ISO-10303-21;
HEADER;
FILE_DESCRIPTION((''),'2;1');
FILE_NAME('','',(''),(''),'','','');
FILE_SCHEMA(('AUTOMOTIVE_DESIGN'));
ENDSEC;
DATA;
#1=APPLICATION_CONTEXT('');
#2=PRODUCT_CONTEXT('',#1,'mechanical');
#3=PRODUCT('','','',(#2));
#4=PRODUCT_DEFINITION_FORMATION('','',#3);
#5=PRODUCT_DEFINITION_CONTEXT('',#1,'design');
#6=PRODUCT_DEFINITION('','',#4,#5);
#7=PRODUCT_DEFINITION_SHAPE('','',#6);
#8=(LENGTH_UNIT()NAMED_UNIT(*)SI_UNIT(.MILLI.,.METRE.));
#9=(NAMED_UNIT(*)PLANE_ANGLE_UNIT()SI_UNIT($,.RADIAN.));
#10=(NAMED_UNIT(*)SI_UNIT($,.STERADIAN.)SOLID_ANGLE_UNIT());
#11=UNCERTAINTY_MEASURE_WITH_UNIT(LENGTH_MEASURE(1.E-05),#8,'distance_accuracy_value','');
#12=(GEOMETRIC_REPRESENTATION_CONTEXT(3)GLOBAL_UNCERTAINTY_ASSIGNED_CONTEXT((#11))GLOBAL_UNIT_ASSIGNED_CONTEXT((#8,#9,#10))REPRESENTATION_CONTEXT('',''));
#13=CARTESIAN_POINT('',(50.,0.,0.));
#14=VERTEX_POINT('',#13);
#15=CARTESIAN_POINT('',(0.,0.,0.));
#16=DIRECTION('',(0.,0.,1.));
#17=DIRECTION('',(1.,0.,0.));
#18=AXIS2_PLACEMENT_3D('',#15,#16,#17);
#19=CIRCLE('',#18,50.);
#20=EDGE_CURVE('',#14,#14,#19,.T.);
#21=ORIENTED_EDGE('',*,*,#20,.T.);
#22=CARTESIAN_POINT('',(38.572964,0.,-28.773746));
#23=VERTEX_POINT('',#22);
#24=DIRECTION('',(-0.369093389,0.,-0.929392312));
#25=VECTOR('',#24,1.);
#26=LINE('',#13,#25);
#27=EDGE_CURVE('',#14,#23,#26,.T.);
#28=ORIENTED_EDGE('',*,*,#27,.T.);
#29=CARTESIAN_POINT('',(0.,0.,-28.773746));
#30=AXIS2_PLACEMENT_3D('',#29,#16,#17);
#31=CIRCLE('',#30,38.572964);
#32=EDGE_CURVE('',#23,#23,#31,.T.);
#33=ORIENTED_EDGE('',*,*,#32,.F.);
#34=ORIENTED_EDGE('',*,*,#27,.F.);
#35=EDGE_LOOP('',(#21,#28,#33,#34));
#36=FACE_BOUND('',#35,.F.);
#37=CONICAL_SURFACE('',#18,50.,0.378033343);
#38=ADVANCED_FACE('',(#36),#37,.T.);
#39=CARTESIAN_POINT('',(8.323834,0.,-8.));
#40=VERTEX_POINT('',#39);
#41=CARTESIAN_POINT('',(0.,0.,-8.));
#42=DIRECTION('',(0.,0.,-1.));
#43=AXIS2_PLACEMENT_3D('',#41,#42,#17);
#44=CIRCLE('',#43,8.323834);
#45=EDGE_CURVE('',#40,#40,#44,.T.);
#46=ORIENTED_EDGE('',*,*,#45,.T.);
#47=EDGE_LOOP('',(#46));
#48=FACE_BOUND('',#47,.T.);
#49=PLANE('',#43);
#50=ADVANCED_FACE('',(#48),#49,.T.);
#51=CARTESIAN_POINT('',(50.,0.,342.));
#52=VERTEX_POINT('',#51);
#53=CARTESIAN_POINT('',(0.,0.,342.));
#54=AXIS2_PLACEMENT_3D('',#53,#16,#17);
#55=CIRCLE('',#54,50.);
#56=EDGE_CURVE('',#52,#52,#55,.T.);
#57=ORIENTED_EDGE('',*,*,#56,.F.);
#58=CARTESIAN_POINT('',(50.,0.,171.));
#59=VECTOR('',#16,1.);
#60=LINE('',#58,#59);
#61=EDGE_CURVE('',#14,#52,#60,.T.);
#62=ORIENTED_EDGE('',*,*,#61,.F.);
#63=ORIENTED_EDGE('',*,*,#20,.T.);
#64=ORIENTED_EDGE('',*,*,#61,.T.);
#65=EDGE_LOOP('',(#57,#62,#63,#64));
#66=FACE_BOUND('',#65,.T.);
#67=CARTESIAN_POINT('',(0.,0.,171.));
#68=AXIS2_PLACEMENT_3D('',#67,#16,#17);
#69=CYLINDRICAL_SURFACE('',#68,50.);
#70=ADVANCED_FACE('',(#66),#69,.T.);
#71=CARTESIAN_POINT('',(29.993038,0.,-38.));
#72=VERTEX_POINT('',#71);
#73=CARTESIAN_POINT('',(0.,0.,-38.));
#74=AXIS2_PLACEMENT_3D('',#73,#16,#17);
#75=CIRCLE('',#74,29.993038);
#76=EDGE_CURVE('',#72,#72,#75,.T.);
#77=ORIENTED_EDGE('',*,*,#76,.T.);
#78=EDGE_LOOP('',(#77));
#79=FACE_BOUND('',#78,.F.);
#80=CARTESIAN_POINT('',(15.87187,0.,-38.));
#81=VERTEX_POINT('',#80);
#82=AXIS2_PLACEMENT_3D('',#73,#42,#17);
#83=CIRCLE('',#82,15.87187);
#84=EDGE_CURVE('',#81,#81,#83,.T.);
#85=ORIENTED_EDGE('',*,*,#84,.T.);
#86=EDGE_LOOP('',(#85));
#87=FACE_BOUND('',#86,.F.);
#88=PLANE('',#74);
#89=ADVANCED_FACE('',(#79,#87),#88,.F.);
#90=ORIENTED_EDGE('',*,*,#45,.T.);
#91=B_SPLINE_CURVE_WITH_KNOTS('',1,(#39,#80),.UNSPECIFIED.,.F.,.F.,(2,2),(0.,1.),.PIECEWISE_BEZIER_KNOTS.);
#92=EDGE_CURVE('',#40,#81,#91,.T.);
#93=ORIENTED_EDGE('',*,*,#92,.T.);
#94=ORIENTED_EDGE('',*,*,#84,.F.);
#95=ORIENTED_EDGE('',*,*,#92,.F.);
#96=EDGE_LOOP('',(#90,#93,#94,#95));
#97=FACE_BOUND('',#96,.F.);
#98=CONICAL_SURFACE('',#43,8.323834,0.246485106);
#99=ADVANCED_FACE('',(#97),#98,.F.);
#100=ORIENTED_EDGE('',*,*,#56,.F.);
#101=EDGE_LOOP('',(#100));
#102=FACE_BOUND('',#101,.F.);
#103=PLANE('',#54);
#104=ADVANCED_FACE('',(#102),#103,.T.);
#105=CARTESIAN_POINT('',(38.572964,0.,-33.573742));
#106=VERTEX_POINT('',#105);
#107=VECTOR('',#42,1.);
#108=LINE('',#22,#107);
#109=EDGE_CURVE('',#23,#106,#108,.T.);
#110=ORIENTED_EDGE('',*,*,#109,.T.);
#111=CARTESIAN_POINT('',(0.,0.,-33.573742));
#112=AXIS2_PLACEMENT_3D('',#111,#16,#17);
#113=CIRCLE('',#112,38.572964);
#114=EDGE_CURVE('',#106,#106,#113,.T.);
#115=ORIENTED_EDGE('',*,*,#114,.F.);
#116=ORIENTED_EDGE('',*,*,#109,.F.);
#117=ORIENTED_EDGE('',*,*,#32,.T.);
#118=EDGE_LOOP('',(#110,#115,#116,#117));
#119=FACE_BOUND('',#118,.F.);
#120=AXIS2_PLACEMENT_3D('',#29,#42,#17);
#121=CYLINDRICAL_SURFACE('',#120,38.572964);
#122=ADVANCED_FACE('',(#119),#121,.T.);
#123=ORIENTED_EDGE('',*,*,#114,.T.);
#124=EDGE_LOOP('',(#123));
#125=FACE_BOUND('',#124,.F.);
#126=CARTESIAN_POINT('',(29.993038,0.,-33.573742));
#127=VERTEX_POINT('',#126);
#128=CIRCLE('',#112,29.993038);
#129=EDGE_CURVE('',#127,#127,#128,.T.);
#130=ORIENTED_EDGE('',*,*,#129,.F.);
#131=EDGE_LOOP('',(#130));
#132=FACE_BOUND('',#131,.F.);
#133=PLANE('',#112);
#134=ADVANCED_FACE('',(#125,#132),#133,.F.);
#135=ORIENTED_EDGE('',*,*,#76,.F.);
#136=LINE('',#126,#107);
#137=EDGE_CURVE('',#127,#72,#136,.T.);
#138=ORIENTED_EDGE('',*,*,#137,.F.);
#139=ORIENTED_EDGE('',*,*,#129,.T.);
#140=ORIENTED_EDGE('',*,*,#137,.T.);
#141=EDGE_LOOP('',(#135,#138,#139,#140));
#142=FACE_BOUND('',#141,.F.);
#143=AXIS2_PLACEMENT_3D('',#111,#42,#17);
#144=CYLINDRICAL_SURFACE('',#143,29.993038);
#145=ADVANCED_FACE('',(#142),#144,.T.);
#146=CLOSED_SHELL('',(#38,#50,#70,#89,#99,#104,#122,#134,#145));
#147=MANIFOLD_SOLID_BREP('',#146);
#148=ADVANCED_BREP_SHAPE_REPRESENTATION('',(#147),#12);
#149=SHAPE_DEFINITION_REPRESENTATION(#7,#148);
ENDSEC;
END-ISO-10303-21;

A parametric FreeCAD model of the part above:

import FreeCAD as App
import Part
import Sketcher
from FreeCAD import Vector
Q = App.Units.Quantity


def add_polygon(sketch, points):
    """Adds a closed chain of lines whose ends are joined by coincident constraints."""
    first, n = sketch.GeometryCount, len(points)
    for a, b in zip(points, points[1:] + points[:1]):
        sketch.addGeometry(Part.LineSegment(App.Vector(*a, 0), App.Vector(*b, 0)), False)
    for i in range(n):
        sketch.addConstraint(Sketcher.Constraint("Coincident", first + i, 2, first + (i + 1) % n, 1))

doc = App.newDocument("Part")
body = doc.addObject("PartDesign::Body", "Body")

# Sketch on XZ plane
sketch1 = body.newObject("Sketcher::SketchObject", "Sketch")
sketch1.AttachmentSupport = (doc.getObject("XZ_Plane"), [""])
sketch1.MapMode = "FlatFace"
add_polygon(sketch1, [(0, 342), (0, 0), (50, 0), (50, 342)])  # lines 0-3
sketch1.addConstraint([
    Sketcher.Constraint("Vertical", 0),
    Sketcher.Constraint("Horizontal", 1),
    Sketcher.Constraint("Vertical", 2),
    Sketcher.Constraint("Horizontal", 3),
    Sketcher.Constraint("Coincident", 0, 2, -1, 1),
    Sketcher.Constraint("DistanceX", 1, 1, 1, 2, Q("50 mm")),
    Sketcher.Constraint("DistanceY", 0, 2, 0, 1, Q("342 mm")),
])
revolution = body.newObject("PartDesign::Revolution", "Revolution")
revolution.Profile = sketch1
revolution.ReferenceAxis = (sketch1, ["V_Axis"])
revolution.Angle = 360

# Sketch on XZ plane
sketch2 = body.newObject("Sketcher::SketchObject", "Sketch001")
sketch2.AttachmentSupport = (doc.getObject("XZ_Plane"), [""])
sketch2.MapMode = "FlatFace"
add_polygon(sketch2, [(38.572964, -28.773746), (50, 0), (0, 0), (0, -38), (29.993038, -38), (29.993038, -33.573742), (38.572964, -33.573742)])  # lines 0-6
sketch2.addConstraint([
    Sketcher.Constraint("Horizontal", 1),
    Sketcher.Constraint("Vertical", 2),
    Sketcher.Constraint("Horizontal", 3),
    Sketcher.Constraint("Vertical", 4),
    Sketcher.Constraint("Horizontal", 5),
    Sketcher.Constraint("Vertical", 6),
    Sketcher.Constraint("Coincident", 1, 2, -1, 1),
    Sketcher.Constraint("DistanceX", 1, 2, 1, 1, Q("50 mm")),
    Sketcher.Constraint("DistanceY", 2, 2, 2, 1, Q("38 mm")),
    Sketcher.Constraint("Distance", 0, Q("30.959742 mm")),
    Sketcher.Constraint("DistanceX", 3, 1, 3, 2, Q("29.993038 mm")),
    Sketcher.Constraint("DistanceX", 5, 1, 5, 2, Q("8.579926 mm")),
    Sketcher.Constraint("DistanceY", 4, 1, 4, 2, Q("4.426258 mm")),
])
revolution2 = body.newObject("PartDesign::Revolution", "Revolution001")
revolution2.Profile = sketch2
revolution2.ReferenceAxis = (sketch2, ["V_Axis"])
revolution2.Angle = 360

# Sketch on XY plane
sketch3 = body.newObject("Sketcher::SketchObject", "Sketch002")
sketch3.AttachmentSupport = (doc.getObject("XY_Plane"), [""])
sketch3.MapMode = "FlatFace"
sketch3.AttachmentOffset = App.Placement(Vector(0, 0, -8), App.Rotation())
sketch3.addGeometry(Part.Circle(Vector(0, 0, 0), Vector(0, 0, 1), 8.323834), False)
sketch3.addConstraint([
    Sketcher.Constraint("Coincident", 0, 3, -1, 1),
    Sketcher.Constraint("Diameter", 0, Q("16.647668 mm")),
])

# Sketch on XY plane
sketch4 = body.newObject("Sketcher::SketchObject", "Sketch003")
sketch4.AttachmentSupport = (doc.getObject("XY_Plane"), [""])
sketch4.MapMode = "FlatFace"
sketch4.AttachmentOffset = App.Placement(Vector(0, 0, -38), App.Rotation())
sketch4.addGeometry(Part.Circle(Vector(0, 0, 0), Vector(0, 0, 1), 15.87187), False)
sketch4.addConstraint([
    Sketcher.Constraint("Coincident", 0, 3, -1, 1),
    Sketcher.Constraint("Diameter", 0, Q("31.74374 mm")),
])

subtractiveloft = body.newObject("PartDesign::SubtractiveLoft", "SubtractiveLoft")
subtractiveloft.Profile = sketch3
subtractiveloft.Sections = [sketch4]

doc.recompute()
